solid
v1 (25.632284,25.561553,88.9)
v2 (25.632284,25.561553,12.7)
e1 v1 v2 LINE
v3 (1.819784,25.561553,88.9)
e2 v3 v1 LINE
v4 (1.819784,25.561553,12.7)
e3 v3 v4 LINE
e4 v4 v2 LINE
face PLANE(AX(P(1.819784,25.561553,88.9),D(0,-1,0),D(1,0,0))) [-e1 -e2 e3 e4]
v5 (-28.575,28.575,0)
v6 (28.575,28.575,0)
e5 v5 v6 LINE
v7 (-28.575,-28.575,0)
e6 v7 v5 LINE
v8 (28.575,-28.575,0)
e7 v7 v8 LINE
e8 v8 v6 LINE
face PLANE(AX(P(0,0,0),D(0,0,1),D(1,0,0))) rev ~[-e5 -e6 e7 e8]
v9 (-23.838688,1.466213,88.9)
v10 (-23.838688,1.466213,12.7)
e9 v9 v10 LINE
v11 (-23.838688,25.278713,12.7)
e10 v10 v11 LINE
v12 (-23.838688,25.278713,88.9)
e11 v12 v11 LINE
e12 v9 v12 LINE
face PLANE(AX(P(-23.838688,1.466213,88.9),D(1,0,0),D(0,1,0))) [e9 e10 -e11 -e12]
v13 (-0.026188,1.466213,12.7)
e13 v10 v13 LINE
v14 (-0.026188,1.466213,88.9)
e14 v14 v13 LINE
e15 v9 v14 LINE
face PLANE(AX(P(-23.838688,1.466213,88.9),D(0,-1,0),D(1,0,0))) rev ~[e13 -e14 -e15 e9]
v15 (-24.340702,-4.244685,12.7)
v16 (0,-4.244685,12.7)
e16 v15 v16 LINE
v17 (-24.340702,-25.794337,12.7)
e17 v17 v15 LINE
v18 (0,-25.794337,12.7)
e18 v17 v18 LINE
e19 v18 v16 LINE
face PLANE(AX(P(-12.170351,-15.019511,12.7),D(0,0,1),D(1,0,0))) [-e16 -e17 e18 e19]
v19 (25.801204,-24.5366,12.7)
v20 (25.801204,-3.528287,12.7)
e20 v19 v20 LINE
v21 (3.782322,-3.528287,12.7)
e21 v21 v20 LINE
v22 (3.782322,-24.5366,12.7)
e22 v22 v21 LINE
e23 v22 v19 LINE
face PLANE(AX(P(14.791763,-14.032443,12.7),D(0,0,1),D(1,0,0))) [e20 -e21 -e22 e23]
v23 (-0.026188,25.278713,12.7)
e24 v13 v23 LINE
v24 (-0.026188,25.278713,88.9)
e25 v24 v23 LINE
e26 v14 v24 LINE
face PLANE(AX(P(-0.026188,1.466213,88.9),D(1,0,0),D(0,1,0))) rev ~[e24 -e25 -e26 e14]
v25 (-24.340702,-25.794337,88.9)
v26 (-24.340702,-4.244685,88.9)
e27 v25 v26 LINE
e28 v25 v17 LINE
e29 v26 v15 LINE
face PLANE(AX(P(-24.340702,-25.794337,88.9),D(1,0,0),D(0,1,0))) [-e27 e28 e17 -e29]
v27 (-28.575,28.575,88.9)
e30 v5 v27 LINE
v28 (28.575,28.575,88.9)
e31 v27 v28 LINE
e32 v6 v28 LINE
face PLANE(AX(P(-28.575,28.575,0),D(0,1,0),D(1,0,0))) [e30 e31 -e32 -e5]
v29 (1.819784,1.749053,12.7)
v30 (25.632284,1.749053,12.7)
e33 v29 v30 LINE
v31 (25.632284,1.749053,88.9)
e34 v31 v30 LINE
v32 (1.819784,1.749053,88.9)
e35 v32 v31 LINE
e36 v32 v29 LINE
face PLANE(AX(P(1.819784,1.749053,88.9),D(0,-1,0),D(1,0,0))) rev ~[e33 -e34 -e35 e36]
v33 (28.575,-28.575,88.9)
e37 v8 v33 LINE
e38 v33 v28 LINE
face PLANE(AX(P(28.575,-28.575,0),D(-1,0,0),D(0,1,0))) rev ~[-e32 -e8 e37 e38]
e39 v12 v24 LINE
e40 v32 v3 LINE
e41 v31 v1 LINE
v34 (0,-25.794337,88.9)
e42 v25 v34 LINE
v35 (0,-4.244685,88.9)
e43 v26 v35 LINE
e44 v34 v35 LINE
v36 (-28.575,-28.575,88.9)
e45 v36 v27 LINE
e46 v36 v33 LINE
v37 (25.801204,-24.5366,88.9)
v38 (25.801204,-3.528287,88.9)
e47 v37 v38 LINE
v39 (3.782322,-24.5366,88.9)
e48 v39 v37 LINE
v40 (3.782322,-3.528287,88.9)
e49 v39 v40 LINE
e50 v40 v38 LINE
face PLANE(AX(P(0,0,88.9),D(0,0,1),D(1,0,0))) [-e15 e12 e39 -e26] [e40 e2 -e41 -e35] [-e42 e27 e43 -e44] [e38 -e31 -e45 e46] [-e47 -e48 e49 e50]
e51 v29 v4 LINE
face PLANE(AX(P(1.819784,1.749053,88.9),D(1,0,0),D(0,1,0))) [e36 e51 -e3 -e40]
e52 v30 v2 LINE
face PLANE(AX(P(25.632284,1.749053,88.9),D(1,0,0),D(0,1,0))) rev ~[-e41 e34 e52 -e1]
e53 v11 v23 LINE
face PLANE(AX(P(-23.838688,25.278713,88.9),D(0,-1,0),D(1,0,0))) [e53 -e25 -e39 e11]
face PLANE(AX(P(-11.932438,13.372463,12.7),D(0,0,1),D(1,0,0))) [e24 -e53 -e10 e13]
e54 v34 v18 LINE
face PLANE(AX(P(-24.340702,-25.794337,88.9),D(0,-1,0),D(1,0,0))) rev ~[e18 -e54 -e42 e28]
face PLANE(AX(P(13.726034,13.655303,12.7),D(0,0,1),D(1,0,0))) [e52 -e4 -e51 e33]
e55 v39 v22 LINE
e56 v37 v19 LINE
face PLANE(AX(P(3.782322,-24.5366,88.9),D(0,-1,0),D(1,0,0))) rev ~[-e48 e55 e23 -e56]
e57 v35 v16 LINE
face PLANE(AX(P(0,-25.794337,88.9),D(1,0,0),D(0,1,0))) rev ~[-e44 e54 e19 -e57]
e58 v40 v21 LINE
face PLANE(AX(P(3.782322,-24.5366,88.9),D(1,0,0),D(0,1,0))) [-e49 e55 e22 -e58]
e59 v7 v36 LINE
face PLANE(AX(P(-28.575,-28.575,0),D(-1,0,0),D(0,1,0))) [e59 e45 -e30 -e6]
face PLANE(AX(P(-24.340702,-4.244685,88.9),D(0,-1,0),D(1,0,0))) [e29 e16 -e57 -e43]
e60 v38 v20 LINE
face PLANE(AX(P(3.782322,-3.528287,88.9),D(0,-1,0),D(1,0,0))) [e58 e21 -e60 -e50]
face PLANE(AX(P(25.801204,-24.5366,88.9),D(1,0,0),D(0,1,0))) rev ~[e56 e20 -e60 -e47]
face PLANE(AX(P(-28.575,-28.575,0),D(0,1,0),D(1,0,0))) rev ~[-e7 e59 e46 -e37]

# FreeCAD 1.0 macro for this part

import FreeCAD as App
import Part
import Sketcher

V = App.Vector
Q = App.Units.Quantity


def add_polygon(sketch, points):
    """Adds a closed chain of lines whose ends are joined by coincident constraints."""
    first, n = sketch.GeometryCount, len(points)
    for a, b in zip(points, points[1:] + points[:1]):
        sketch.addGeometry(Part.LineSegment(App.Vector(*a, 0), App.Vector(*b, 0)), False)
    for i in range(n):
        sketch.addConstraint(Sketcher.Constraint("Coincident", first + i, 2, first + (i + 1) % n, 1))

doc = App.newDocument("Part")
body = doc.addObject("PartDesign::Body", "Body")

# Sketch on XY plane
sketch1 = body.newObject("Sketcher::SketchObject", "Sketch")
sketch1.AttachmentSupport = (doc.getObject("XY_Plane"), [""])
sketch1.MapMode = "FlatFace"
add_polygon(sketch1, [(-28.575, 28.575), (-28.575, -28.575), (28.575, -28.575), (28.575, 28.575)])  # lines 0-3
sketch1.addConstraint([
    Sketcher.Constraint("Vertical", 0),
    Sketcher.Constraint("Horizontal", 1),
    Sketcher.Constraint("Vertical", 2),
    Sketcher.Constraint("Horizontal", 3),
    Sketcher.Constraint("Symmetric", 0, 2, 2, 2, -1, 1),
    Sketcher.Constraint("Equal", 3, 0),
    Sketcher.Constraint("DistanceX", 1, 1, 1, 2, Q("2.25 in")),
])
pad1 = body.newObject("PartDesign::Pad", "Pad")
pad1.Profile = sketch1
pad1.Length = Q("3.5 in")

# Sketch on XY plane
sketch2 = body.newObject("Sketcher::SketchObject", "Sketch001")
sketch2.AttachmentSupport = (doc.getObject("XY_Plane"), [""])
sketch2.MapMode = "FlatFace"
sketch2.AttachmentOffset = App.Placement(V(0, 0, 3.5 * 25.4), App.Rotation())
add_polygon(sketch2, [(1.819784, 25.561553), (1.819784, 1.749053), (25.632284, 1.749053), (25.632284, 25.561553)])  # lines 0-3
sketch2.addConstraint([
    Sketcher.Constraint("Vertical", 0),
    Sketcher.Constraint("Horizontal", 1),
    Sketcher.Constraint("Vertical", 2),
    Sketcher.Constraint("Horizontal", 3),
    Sketcher.Constraint("Equal", 3, 0),
    Sketcher.Constraint("DistanceX", 1, 1, 1, 2, Q("0.9375 in")),
    Sketcher.Constraint("DistanceX", -1, 1, 0, 2, 1.819784),
    Sketcher.Constraint("DistanceY", -1, 1, 0, 2, 1.749053),
])
pocket1 = body.newObject("PartDesign::Pocket", "Pocket")
pocket1.Profile = sketch2
pocket1.Length = Q("3 in")

# Sketch on XY plane
sketch3 = body.newObject("Sketcher::SketchObject", "Sketch002")
sketch3.AttachmentSupport = (doc.getObject("XY_Plane"), [""])
sketch3.MapMode = "FlatFace"
sketch3.AttachmentOffset = App.Placement(V(0, 0, 3.5 * 25.4), App.Rotation())
add_polygon(sketch3, [(-23.838688, 25.278713), (-23.838688, 1.466213), (-0.026188, 1.466213), (-0.026188, 25.278713)])  # lines 0-3
sketch3.addConstraint([
    Sketcher.Constraint("Vertical", 0),
    Sketcher.Constraint("Horizontal", 1),
    Sketcher.Constraint("Vertical", 2),
    Sketcher.Constraint("Horizontal", 3),
    Sketcher.Constraint("Equal", 3, 0),
    Sketcher.Constraint("DistanceX", 1, 1, 1, 2, Q("0.9375 in")),
    Sketcher.Constraint("DistanceX", 0, 2, -1, 1, 23.838688),
    Sketcher.Constraint("DistanceY", -1, 1, 0, 2, 1.466213),
])
pocket2 = body.newObject("PartDesign::Pocket", "Pocket001")
pocket2.Profile = sketch3
pocket2.Length = Q("3 in")

# Sketch on XY plane
sketch4 = body.newObject("Sketcher::SketchObject", "Sketch003")
sketch4.AttachmentSupport = (doc.getObject("XY_Plane"), [""])
sketch4.MapMode = "FlatFace"
sketch4.AttachmentOffset = App.Placement(V(0, 0, 3.5 * 25.4), App.Rotation())
add_polygon(sketch4, [(-24.340702, -4.244685), (-24.340702, -25.794337), (0, -25.794337), (0, -4.244685)])  # lines 0-3
sketch4.addConstraint([
    Sketcher.Constraint("Vertical", 0),
    Sketcher.Constraint("Horizontal", 1),
    Sketcher.Constraint("Vertical", 2),
    Sketcher.Constraint("Horizontal", 3),
    Sketcher.Constraint("PointOnObject", 1, 2, -2),
    Sketcher.Constraint("DistanceY", 0, 2, 0, 1, 21.549652),
    Sketcher.Constraint("DistanceX", 1, 1, 1, 2, 24.340702),
    Sketcher.Constraint("DistanceY", 0, 2, -1, 1, 25.794337),
])
pocket3 = body.newObject("PartDesign::Pocket", "Pocket002")
pocket3.Profile = sketch4
pocket3.Length = Q("3 in")

# Sketch on XY plane
sketch5 = body.newObject("Sketcher::SketchObject", "Sketch004")
sketch5.AttachmentSupport = (doc.getObject("XY_Plane"), [""])
sketch5.MapMode = "FlatFace"
sketch5.AttachmentOffset = App.Placement(V(0, 0, 3.5 * 25.4), App.Rotation())
add_polygon(sketch5, [(3.782322, -3.528287), (3.782322, -24.5366), (25.801204, -24.5366), (25.801204, -3.528287)])  # lines 0-3
sketch5.addConstraint([
    Sketcher.Constraint("Vertical", 0),
    Sketcher.Constraint("Horizontal", 1),
    Sketcher.Constraint("Vertical", 2),
    Sketcher.Constraint("Horizontal", 3),
    Sketcher.Constraint("DistanceX", 1, 1, 1, 2, 22.018882),
    Sketcher.Constraint("DistanceY", 0, 2, -1, 1, 24.5366),
    Sketcher.Constraint("DistanceY", 0, 2, 0, 1, 21.008313),
    Sketcher.Constraint("DistanceX", -1, 1, 0, 2, 3.782322),
])
pocket4 = body.newObject("PartDesign::Pocket", "Pocket003")
pocket4.Profile = sketch5
pocket4.Length = Q("3 in")

doc.recompute()
